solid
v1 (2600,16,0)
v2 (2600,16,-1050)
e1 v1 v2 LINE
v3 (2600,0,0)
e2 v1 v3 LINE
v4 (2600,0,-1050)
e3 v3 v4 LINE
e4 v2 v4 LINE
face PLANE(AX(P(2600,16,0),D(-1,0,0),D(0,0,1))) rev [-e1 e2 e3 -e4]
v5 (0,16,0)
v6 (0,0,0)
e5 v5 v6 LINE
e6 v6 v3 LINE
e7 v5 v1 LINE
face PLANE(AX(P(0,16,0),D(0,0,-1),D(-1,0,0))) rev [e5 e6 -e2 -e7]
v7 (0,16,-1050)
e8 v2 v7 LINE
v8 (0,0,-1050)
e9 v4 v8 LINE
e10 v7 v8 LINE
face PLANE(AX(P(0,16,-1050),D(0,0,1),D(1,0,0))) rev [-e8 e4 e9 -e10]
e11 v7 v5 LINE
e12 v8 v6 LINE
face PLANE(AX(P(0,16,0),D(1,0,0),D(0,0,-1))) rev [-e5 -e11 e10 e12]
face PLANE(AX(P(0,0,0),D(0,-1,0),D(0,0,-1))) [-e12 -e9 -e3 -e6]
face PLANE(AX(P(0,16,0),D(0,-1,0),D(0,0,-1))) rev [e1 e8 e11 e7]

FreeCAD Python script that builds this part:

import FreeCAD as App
import Part
import Sketcher
from FreeCAD import Vector
Q = App.Units.Quantity

doc = App.newDocument("Part")
body = doc.addObject("PartDesign::Body", "Body")

# Sketch on XZ plane
sketch1 = body.newObject("Sketcher::SketchObject", "Sketch")
sketch1.AttachmentSupport = (doc.getObject("XZ_Plane"), [""])
sketch1.MapMode = "FlatFace"
sketch1.addGeometry([
    Part.LineSegment(Vector(0, -1050, 0), Vector(0, 0, 0)),
    Part.LineSegment(Vector(0, 0, 0), Vector(2600, 0, 0)),
    Part.LineSegment(Vector(2600, 0, 0), Vector(2600, -1050, 0)),
    Part.LineSegment(Vector(2600, -1050, 0), Vector(0, -1050, 0)),
], False)
sketch1.addConstraint([
    Sketcher.Constraint("Coincident", 0, 2, 1, 1),
    Sketcher.Constraint("Coincident", 1, 2, 2, 1),
    Sketcher.Constraint("Coincident", 2, 2, 3, 1),
    Sketcher.Constraint("Coincident", 3, 2, 0, 1),
    Sketcher.Constraint("Vertical", 0),
    Sketcher.Constraint("Horizontal", 1),
    Sketcher.Constraint("Vertical", 2),
    Sketcher.Constraint("Horizontal", 3),
    Sketcher.Constraint("Coincident", 0, 2, -1, 1),
    Sketcher.Constraint("DistanceX", 1, 1, 1, 2, Q("2600 mm")),
    Sketcher.Constraint("DistanceY", 0, 1, 0, 2, Q("1050 mm")),
])
pad1 = body.newObject("PartDesign::Pad", "Pad")
pad1.Profile = sketch1
pad1.Length = 16
pad1.Reversed = True

doc.recompute()
